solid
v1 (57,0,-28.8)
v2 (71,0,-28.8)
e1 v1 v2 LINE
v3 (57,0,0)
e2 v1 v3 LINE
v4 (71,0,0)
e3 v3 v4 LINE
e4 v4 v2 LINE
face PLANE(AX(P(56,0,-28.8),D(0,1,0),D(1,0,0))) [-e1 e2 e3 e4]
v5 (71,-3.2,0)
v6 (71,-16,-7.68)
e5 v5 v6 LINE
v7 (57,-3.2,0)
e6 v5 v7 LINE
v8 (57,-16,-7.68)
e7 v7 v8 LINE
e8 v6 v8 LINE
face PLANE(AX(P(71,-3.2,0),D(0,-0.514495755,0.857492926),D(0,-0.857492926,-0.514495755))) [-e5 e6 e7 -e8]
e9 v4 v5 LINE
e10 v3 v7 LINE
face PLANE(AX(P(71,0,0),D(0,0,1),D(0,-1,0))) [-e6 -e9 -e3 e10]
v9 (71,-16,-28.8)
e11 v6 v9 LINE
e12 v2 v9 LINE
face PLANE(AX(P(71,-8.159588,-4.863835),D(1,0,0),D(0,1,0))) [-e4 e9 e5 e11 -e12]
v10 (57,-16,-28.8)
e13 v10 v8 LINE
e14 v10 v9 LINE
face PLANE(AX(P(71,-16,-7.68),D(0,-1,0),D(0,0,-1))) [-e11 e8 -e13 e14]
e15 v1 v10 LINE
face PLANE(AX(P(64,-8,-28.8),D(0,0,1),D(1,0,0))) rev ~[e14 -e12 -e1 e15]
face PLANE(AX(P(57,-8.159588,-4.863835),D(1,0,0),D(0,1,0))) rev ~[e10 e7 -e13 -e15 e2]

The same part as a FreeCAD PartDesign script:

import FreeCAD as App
import Part
import Sketcher
from FreeCAD import Vector

doc = App.newDocument("Part")
body = doc.addObject("PartDesign::Body", "Body")

sketch1 = body.newObject("Sketcher::SketchObject", "Sketch")
sketch1.AttachmentSupport = (doc.getObject("XY_Plane"), [""])
sketch1.MapMode = "FlatFace"
sketch1.AttachmentOffset = App.Placement(Vector(0, 0, -28.8), App.Rotation())
sketch1.addGeometry(Part.LineSegment(Vector(56, 0, 0), Vector(56, -16, 0)), False)
sketch1.addGeometry(Part.LineSegment(Vector(56, -16, 0), Vector(72, -16, 0)), False)
sketch1.addGeometry(Part.LineSegment(Vector(72, -16, 0), Vector(72, 0, 0)), False)
sketch1.addGeometry(Part.LineSegment(Vector(72, 0, 0), Vector(56, 0, 0)), False)
sketch1.addConstraint(Sketcher.Constraint("Coincident", 0, 2, 1, 1))
sketch1.addConstraint(Sketcher.Constraint("Coincident", 1, 2, 2, 1))
sketch1.addConstraint(Sketcher.Constraint("Coincident", 2, 2, 3, 1))
sketch1.addConstraint(Sketcher.Constraint("Coincident", 3, 2, 0, 1))
sketch1.addConstraint(Sketcher.Constraint("Vertical", 0))
sketch1.addConstraint(Sketcher.Constraint("Horizontal", 1))
sketch1.addConstraint(Sketcher.Constraint("Vertical", 2))
sketch1.addConstraint(Sketcher.Constraint("Horizontal", 3))
sketch1.addConstraint(Sketcher.Constraint("PointOnObject", 2, 2, -1))
sketch1.addConstraint(Sketcher.Constraint("Equal", 3, 0))
sketch1.addConstraint(Sketcher.Constraint("DistanceX", 1, 1, 1, 2, 16.0))
sketch1.addConstraint(Sketcher.Constraint("DistanceX", -1, 1, 0, 2, 56.0))
pad1 = body.newObject("PartDesign::Pad", "Pad")
pad1.Profile = sketch1
pad1.Length = 28.8

sketch2 = body.newObject("Sketcher::SketchObject", "Sketch001")
sketch2.AttachmentSupport = (doc.getObject("YZ_Plane"), [""])
sketch2.MapMode = "FlatFace"
sketch2.AttachmentOffset = App.Placement(Vector(0, 0, 72), App.Rotation())
sketch2.addGeometry(Part.LineSegment(Vector(-16, 0, 0), Vector(-16, -10, 0)), False)
sketch2.addGeometry(Part.LineSegment(Vector(-16, -10, 0), Vector(0, 0, 0)), False)
sketch2.addGeometry(Part.LineSegment(Vector(0, 0, 0), Vector(-16, 0, 0)), False)
sketch2.addConstraint(Sketcher.Constraint("Coincident", 0, 2, 1, 1))
sketch2.addConstraint(Sketcher.Constraint("Coincident", 1, 2, 2, 1))
sketch2.addConstraint(Sketcher.Constraint("Coincident", 2, 2, 0, 1))
sketch2.addConstraint(Sketcher.Constraint("Vertical", 0))
sketch2.addConstraint(Sketcher.Constraint("Horizontal", 2))
sketch2.addConstraint(Sketcher.Constraint("Coincident", 1, 2, -1, 1))
sketch2.addConstraint(Sketcher.Constraint("DistanceX", 2, 2, 2, 1, 16.0))
sketch2.addConstraint(Sketcher.Constraint("DistanceY", 0, 2, 0, 1, 9.6))
pocket1 = body.newObject("PartDesign::Pocket", "Pocket")
pocket1.Profile = sketch2
pocket1.Length = 16

sketch3 = body.newObject("Sketcher::SketchObject", "Sketch002")
sketch3.AttachmentSupport = (doc.getObject("XY_Plane"), [""])
sketch3.MapMode = "FlatFace"
sketch3.AttachmentOffset = App.Placement(Vector(0, 0, -28.8), App.Rotation())
sketch3.addGeometry(Part.LineSegment(Vector(56, -16, 0), Vector(56, 0, 0)), False)
sketch3.addGeometry(Part.LineSegment(Vector(56, 0, 0), Vector(57, 0, 0)), False)
sketch3.addGeometry(Part.LineSegment(Vector(57, 0, 0), Vector(57, -16, 0)), False)
sketch3.addGeometry(Part.LineSegment(Vector(57, -16, 0), Vector(56, -16, 0)), False)
sketch3.addGeometry(Part.LineSegment(Vector(71, -16, 0), Vector(71, 0, 0)), False)
sketch3.addGeometry(Part.LineSegment(Vector(71, 0, 0), Vector(72, 0, 0)), False)
sketch3.addGeometry(Part.LineSegment(Vector(72, 0, 0), Vector(72, -16, 0)), False)
sketch3.addGeometry(Part.LineSegment(Vector(72, -16, 0), Vector(71, -16, 0)), False)
sketch3.addConstraint(Sketcher.Constraint("Coincident", 0, 2, 1, 1))
sketch3.addConstraint(Sketcher.Constraint("Coincident", 1, 2, 2, 1))
sketch3.addConstraint(Sketcher.Constraint("Coincident", 2, 2, 3, 1))
sketch3.addConstraint(Sketcher.Constraint("Coincident", 3, 2, 0, 1))
sketch3.addConstraint(Sketcher.Constraint("Coincident", 4, 2, 5, 1))
sketch3.addConstraint(Sketcher.Constraint("Coincident", 5, 2, 6, 1))
sketch3.addConstraint(Sketcher.Constraint("Coincident", 6, 2, 7, 1))
sketch3.addConstraint(Sketcher.Constraint("Coincident", 7, 2, 4, 1))
sketch3.addConstraint(Sketcher.Constraint("Vertical", 0))
sketch3.addConstraint(Sketcher.Constraint("Horizontal", 1))
sketch3.addConstraint(Sketcher.Constraint("Vertical", 2))
sketch3.addConstraint(Sketcher.Constraint("Horizontal", 3))
sketch3.addConstraint(Sketcher.Constraint("Vertical", 4))
sketch3.addConstraint(Sketcher.Constraint("Horizontal", 5))
sketch3.addConstraint(Sketcher.Constraint("Vertical", 6))
sketch3.addConstraint(Sketcher.Constraint("Horizontal", 7))
sketch3.addConstraint(Sketcher.Constraint("PointOnObject", 0, 2, -1))
sketch3.addConstraint(Sketcher.Constraint("PointOnObject", 4, 2, -1))
sketch3.addConstraint(Sketcher.Constraint("Horizontal", 3, 2, 6, 2))
sketch3.addConstraint(Sketcher.Constraint("Equal", 3, 5))
sketch3.addConstraint(Sketcher.Constraint("DistanceX", 1, 1, 1, 2, 1.0))
sketch3.addConstraint(Sketcher.Constraint("DistanceY", 0, 1, 0, 2, 16.0))
sketch3.addConstraint(Sketcher.Constraint("DistanceX", -1, 1, 0, 2, 56.0))
sketch3.addConstraint(Sketcher.Constraint("DistanceX", -1, 1, 4, 2, 71.0))
pocket2 = body.newObject("PartDesign::Pocket", "Pocket001")
pocket2.Profile = sketch3
pocket2.Length = 30
pocket2.Reversed = True

sketch4 = body.newObject("Sketcher::SketchObject", "Sketch003")
sketch4.AttachmentSupport = (doc.getObject("YZ_Plane"), [""])
sketch4.MapMode = "FlatFace"
sketch4.AttachmentOffset = App.Placement(Vector(0, 0, 71), App.Rotation())
sketch4.addGeometry(Part.LineSegment(Vector(0, 0, 0), Vector(-3.2, 0, 0)), False)
sketch4.addGeometry(Part.LineSegment(Vector(-3.2, 0, 0), Vector(-16, -7.7, 0)), False)
sketch4.addGeometry(Part.LineSegment(Vector(-16, -7.7, 0), Vector(-16, -10.9, 0)), False)
sketch4.addGeometry(Part.LineSegment(Vector(-16, -10.9, 0), Vector(-3.2, -3.2, 0)), False)
sketch4.addGeometry(Part.LineSegment(Vector(-3.2, -3.2, 0), Vector(0, -3.2, 0)), False)
sketch4.addGeometry(Part.LineSegment(Vector(0, -3.2, 0), Vector(0, 0, 0)), False)
sketch4.addConstraint(Sketcher.Constraint("Coincident", 0, 2, 1, 1))
sketch4.addConstraint(Sketcher.Constraint("Coincident", 1, 2, 2, 1))
sketch4.addConstraint(Sketcher.Constraint("Coincident", 2, 2, 3, 1))
sketch4.addConstraint(Sketcher.Constraint("Coincident", 3, 2, 4, 1))
sketch4.addConstraint(Sketcher.Constraint("Coincident", 4, 2, 5, 1))
sketch4.addConstraint(Sketcher.Constraint("Coincident", 5, 2, 0, 1))
sketch4.addConstraint(Sketcher.Constraint("Horizontal", 0))
sketch4.addConstraint(Sketcher.Constraint("Vertical", 2))
sketch4.addConstraint(Sketcher.Constraint("Horizontal", 4))
sketch4.addConstraint(Sketcher.Constraint("Vertical", 5))
sketch4.addConstraint(Sketcher.Constraint("Coincident", 5, 2, -1, 1))
sketch4.addConstraint(Sketcher.Constraint("Parallel", 1, 3))
sketch4.addConstraint(Sketcher.Constraint("Vertical", 0, 2, 3, 2))
sketch4.addConstraint(Sketcher.Constraint("Equal", 4, 2))
sketch4.addConstraint(Sketcher.Constraint("DistanceX", 0, 2, 0, 1, 3.2))
sketch4.addConstraint(Sketcher.Constraint("DistanceX", 1, 2, -1, 1, 16.0))
sketch4.addConstraint(Sketcher.Constraint("DistanceY", 1, 2, -1, 1, 7.68))
pad2 = body.newObject("PartDesign::Pad", "Pad001")
pad2.Profile = sketch4
pad2.Length = 14
pad2.Reversed = True

doc.recompute()
